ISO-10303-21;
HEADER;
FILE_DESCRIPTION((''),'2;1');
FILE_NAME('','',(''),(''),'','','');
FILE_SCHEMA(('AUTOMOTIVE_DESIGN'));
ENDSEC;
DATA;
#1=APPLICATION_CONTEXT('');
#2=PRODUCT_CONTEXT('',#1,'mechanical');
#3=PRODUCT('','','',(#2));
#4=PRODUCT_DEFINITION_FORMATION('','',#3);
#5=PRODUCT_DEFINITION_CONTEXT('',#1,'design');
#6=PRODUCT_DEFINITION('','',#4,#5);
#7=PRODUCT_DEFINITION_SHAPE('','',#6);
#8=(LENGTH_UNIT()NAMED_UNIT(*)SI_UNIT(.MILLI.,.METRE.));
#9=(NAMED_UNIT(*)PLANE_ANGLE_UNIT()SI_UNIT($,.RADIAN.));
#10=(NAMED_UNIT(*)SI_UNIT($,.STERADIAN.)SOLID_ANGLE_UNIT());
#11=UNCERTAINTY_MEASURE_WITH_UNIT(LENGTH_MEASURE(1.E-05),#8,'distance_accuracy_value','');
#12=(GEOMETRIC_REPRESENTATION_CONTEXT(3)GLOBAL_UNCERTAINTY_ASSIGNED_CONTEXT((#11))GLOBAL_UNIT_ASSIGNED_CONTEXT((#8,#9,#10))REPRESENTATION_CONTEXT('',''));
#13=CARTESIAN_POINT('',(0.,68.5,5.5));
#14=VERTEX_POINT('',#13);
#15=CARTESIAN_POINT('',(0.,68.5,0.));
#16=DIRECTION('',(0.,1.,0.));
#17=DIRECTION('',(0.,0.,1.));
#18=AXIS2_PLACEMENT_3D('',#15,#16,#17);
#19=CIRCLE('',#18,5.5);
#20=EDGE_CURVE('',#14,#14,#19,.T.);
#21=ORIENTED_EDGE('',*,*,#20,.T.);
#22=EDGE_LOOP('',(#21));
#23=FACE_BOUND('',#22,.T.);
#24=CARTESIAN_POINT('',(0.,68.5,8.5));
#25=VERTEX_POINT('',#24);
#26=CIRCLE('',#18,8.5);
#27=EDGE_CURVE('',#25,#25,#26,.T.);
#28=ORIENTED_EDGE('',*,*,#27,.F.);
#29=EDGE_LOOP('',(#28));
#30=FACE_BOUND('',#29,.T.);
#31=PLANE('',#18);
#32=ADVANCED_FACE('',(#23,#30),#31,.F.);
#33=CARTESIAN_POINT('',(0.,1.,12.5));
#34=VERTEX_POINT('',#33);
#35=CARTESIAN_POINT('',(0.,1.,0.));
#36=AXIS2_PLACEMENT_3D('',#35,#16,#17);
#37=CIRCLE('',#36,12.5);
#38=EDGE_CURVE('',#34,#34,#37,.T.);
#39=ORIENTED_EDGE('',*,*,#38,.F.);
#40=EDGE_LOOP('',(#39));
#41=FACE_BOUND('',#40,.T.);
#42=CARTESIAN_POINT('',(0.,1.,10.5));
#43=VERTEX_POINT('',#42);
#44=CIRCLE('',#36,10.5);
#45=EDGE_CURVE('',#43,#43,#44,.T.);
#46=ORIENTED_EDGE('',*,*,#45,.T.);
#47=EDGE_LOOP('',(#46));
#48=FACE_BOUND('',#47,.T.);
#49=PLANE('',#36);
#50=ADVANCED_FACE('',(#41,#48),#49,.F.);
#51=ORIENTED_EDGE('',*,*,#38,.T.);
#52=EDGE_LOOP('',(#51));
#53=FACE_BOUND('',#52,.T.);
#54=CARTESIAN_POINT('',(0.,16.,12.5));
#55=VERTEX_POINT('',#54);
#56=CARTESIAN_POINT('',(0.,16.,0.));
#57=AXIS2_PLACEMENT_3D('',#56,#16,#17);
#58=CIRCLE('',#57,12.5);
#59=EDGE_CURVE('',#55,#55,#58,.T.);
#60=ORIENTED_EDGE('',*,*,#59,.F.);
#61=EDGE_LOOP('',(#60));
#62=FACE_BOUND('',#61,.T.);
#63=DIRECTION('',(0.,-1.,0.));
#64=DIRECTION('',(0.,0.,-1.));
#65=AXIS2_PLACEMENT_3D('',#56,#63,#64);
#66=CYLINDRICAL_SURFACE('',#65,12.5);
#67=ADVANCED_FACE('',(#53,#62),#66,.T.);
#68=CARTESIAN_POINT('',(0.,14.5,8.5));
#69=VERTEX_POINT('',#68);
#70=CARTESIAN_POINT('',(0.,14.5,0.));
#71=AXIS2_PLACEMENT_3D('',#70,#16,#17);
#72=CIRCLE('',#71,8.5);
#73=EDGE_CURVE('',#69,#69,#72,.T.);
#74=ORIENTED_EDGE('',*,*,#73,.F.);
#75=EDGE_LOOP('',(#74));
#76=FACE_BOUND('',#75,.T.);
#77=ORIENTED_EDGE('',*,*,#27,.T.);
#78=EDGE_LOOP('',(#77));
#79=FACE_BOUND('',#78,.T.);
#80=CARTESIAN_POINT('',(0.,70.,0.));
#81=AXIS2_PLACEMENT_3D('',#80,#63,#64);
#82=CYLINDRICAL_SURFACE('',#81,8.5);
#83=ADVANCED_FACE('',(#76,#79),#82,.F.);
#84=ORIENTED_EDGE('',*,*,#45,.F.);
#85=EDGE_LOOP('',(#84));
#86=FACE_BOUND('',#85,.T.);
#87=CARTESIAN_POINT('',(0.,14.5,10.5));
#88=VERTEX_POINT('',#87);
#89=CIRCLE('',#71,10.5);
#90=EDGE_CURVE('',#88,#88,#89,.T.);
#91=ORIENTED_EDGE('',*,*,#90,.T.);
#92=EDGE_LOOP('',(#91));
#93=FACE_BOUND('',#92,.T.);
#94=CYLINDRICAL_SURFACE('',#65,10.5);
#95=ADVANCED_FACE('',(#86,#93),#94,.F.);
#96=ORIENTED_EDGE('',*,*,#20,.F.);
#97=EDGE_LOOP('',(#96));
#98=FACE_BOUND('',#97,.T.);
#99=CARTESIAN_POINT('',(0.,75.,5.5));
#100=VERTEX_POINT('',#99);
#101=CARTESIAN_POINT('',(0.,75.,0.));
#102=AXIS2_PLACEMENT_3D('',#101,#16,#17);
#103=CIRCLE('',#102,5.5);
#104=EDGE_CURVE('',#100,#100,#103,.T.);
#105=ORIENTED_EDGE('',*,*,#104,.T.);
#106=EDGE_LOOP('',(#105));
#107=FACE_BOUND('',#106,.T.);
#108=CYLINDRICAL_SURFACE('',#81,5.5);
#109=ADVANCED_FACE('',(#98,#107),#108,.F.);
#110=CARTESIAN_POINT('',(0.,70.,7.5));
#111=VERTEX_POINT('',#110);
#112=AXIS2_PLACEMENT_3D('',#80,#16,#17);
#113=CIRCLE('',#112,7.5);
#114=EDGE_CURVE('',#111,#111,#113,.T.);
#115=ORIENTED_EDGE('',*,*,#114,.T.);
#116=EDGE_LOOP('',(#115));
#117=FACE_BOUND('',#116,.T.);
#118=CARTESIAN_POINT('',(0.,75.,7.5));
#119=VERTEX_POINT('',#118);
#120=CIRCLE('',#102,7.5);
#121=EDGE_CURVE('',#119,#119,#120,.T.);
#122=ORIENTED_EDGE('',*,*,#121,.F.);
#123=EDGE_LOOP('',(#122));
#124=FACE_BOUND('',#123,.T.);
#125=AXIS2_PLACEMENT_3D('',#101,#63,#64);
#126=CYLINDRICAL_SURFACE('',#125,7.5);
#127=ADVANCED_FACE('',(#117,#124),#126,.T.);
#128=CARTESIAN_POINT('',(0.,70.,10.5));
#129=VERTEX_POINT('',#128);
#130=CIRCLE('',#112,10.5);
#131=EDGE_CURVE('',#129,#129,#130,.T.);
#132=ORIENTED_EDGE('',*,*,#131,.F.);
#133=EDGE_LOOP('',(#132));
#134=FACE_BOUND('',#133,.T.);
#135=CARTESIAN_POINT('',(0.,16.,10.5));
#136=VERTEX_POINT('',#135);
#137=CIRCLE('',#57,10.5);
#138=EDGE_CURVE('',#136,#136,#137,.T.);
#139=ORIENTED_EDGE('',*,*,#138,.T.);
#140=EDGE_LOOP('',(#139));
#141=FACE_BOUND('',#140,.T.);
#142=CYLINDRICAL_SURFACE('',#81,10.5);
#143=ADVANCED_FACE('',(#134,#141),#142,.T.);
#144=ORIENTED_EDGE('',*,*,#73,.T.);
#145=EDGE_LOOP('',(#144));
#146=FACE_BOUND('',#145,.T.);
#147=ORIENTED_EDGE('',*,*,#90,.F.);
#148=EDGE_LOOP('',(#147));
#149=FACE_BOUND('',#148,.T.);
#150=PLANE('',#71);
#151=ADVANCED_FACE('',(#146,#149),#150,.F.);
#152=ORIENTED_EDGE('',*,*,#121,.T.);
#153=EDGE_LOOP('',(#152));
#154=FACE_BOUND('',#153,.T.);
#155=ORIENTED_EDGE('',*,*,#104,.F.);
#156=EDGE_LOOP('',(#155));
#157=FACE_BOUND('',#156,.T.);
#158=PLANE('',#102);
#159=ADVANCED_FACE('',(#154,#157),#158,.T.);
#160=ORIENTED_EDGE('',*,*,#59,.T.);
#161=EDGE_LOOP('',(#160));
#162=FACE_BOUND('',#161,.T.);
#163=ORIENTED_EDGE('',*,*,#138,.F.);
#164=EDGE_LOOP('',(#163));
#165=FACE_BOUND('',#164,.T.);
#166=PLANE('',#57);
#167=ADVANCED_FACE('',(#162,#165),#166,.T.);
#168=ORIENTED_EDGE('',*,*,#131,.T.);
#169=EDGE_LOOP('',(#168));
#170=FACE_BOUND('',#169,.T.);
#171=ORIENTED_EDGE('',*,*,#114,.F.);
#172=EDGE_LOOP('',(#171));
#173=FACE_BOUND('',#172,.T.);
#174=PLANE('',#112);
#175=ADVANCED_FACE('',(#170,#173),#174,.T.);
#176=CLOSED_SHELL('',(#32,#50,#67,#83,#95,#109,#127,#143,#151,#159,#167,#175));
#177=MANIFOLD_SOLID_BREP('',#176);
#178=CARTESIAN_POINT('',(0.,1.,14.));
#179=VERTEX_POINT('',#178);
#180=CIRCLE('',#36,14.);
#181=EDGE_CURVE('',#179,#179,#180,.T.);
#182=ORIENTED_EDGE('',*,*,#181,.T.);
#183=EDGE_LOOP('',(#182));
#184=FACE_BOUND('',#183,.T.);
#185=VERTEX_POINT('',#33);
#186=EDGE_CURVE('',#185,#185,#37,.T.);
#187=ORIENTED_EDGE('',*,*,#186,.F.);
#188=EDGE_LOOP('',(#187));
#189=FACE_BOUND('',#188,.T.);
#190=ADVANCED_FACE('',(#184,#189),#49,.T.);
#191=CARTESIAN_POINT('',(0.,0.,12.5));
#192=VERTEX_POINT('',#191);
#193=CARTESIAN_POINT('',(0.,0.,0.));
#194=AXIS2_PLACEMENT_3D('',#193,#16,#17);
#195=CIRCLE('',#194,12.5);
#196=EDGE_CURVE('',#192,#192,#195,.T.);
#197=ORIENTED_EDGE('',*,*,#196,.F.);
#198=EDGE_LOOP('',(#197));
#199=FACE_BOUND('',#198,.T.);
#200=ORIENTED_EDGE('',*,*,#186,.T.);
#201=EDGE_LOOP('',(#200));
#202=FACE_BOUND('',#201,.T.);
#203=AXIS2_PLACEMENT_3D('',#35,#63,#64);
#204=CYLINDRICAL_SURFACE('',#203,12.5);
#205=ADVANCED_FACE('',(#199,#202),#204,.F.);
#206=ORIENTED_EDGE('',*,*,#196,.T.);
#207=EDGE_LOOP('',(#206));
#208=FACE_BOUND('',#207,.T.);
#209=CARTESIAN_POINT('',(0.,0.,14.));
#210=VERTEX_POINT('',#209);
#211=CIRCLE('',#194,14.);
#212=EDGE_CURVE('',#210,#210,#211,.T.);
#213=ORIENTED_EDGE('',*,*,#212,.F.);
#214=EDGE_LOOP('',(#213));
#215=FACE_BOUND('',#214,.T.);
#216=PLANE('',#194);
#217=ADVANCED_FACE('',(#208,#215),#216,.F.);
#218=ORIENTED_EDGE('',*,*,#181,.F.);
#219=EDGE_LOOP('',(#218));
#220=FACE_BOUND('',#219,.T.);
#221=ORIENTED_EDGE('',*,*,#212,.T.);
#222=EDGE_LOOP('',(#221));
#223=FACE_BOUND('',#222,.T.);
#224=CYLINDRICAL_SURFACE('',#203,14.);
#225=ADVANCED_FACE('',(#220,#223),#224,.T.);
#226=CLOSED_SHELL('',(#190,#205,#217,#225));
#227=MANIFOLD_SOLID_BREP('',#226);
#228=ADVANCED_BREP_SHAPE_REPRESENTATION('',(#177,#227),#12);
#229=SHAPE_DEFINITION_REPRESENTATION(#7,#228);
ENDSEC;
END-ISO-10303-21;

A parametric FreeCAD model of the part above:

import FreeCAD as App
import Part
import Sketcher

V = App.Vector

doc = App.newDocument("Part")
body = doc.addObject("PartDesign::Body", "Body")

# Sketch on XZ plane
sketch1 = doc.addObject("Sketcher::SketchObject", "Sketch")
body.addObject(sketch1)
sketch1.AttachmentSupport = (doc.XZ_Plane, [""])
sketch1.MapMode = "FlatFace"
sketch1.addGeometry(Part.Circle(V(0, 0, 0), V(0, 0, 1), 14), False)
sketch1.addGeometry(Part.Circle(V(0, 0, 0), V(0, 0, 1), 12), False)
sketch1.addConstraint(Sketcher.Constraint("Coincident", 0, 3, -1, 1))
sketch1.addConstraint(Sketcher.Constraint("Coincident", 1, 3, -1, 1))
sketch1.addConstraint(Sketcher.Constraint("Diameter", 0, 28.0))
sketch1.addConstraint(Sketcher.Constraint("Diameter", 1, 25.0))
pad1 = doc.addObject("PartDesign::Pad", "Pad")
body.addObject(pad1)
pad1.Profile = sketch1
pad1.Length = 1
pad1.Reversed = True
body2 = doc.addObject("PartDesign::Body", "Body001")

# Sketch on XZ plane
sketch2 = doc.addObject("Sketcher::SketchObject", "Sketch001")
body2.addObject(sketch2)
sketch2.AttachmentSupport = (doc.getObject("XZ_Plane001"), [""])
sketch2.MapMode = "FlatFace"
sketch2.AttachmentOffset = App.Placement(V(0, 0, -1), App.Rotation())
sketch2.addGeometry(Part.Circle(V(0, 0, 0), V(0, 0, 1), 12), False)
sketch2.addGeometry(Part.Circle(V(0, 0, 0), V(0, 0, 1), 10), False)
sketch2.addConstraint(Sketcher.Constraint("Coincident", 0, 3, -1, 1))
sketch2.addConstraint(Sketcher.Constraint("Coincident", 1, 3, -1, 1))
sketch2.addConstraint(Sketcher.Constraint("Diameter", 0, 25.0))
sketch2.addConstraint(Sketcher.Constraint("Diameter", 1, 21.0))
pad2 = doc.addObject("PartDesign::Pad", "Pad001")
body2.addObject(pad2)
pad2.Profile = sketch2
pad2.Length = 15
pad2.Reversed = True

# Sketch on XZ plane
sketch3 = doc.addObject("Sketcher::SketchObject", "Sketch002")
body2.addObject(sketch3)
sketch3.AttachmentSupport = (doc.getObject("XZ_Plane001"), [""])
sketch3.MapMode = "FlatFace"
sketch3.AttachmentOffset = App.Placement(V(0, 0, -14.5), App.Rotation())
sketch3.addGeometry(Part.Circle(V(0, 0, 0), V(0, 0, 1), 10), False)
sketch3.addGeometry(Part.Circle(V(0, 0, 0), V(0, 0, 1), 8), False)
sketch3.addConstraint(Sketcher.Constraint("Coincident", 0, 3, -1, 1))
sketch3.addConstraint(Sketcher.Constraint("Coincident", 1, 3, -1, 1))
sketch3.addConstraint(Sketcher.Constraint("Diameter", 0, 21.0))
sketch3.addConstraint(Sketcher.Constraint("Diameter", 1, 17.0))
pad3 = doc.addObject("PartDesign::Pad", "Pad002")
body2.addObject(pad3)
pad3.Profile = sketch3
pad3.Length = 55.5
pad3.Reversed = True

# Sketch on XZ plane
sketch4 = doc.addObject("Sketcher::SketchObject", "Sketch003")
body2.addObject(sketch4)
sketch4.AttachmentSupport = (doc.getObject("XZ_Plane001"), [""])
sketch4.MapMode = "FlatFace"
sketch4.AttachmentOffset = App.Placement(V(0, 0, -68.5), App.Rotation())
sketch4.addGeometry(Part.Circle(V(0, 0, 0), V(0, 0, 1), 8), False)
sketch4.addGeometry(Part.Circle(V(0, 0, 0), V(0, 0, 1), 6), False)
sketch4.addConstraint(Sketcher.Constraint("Coincident", 0, 3, -1, 1))
sketch4.addConstraint(Sketcher.Constraint("Coincident", 1, 3, -1, 1))
sketch4.addConstraint(Sketcher.Constraint("Diameter", 0, 17.0))
sketch4.addConstraint(Sketcher.Constraint("Diameter", 1, 11.0))
pad4 = doc.addObject("PartDesign::Pad", "Pad003")
body2.addObject(pad4)
pad4.Profile = sketch4
pad4.Length = 1.5
pad4.Reversed = True

# Sketch on XZ plane
sketch5 = doc.addObject("Sketcher::SketchObject", "Sketch004")
body2.addObject(sketch5)
sketch5.AttachmentSupport = (doc.getObject("XZ_Plane001"), [""])
sketch5.MapMode = "FlatFace"
sketch5.AttachmentOffset = App.Placement(V(0, 0, -70), App.Rotation())
sketch5.addGeometry(Part.Circle(V(0, 0, 0), V(0, 0, 1), 8), False)
sketch5.addGeometry(Part.Circle(V(0, 0, 0), V(0, 0, 1), 6), False)
sketch5.addConstraint(Sketcher.Constraint("Coincident", 0, 3, -1, 1))
sketch5.addConstraint(Sketcher.Constraint("Coincident", 1, 3, -1, 1))
sketch5.addConstraint(Sketcher.Constraint("Diameter", 0, 15.0))
sketch5.addConstraint(Sketcher.Constraint("Diameter", 1, 11.0))
pad5 = doc.addObject("PartDesign::Pad", "Pad004")
body2.addObject(pad5)
pad5.Profile = sketch5
pad5.Length = 5
pad5.Reversed = True

doc.recompute()
